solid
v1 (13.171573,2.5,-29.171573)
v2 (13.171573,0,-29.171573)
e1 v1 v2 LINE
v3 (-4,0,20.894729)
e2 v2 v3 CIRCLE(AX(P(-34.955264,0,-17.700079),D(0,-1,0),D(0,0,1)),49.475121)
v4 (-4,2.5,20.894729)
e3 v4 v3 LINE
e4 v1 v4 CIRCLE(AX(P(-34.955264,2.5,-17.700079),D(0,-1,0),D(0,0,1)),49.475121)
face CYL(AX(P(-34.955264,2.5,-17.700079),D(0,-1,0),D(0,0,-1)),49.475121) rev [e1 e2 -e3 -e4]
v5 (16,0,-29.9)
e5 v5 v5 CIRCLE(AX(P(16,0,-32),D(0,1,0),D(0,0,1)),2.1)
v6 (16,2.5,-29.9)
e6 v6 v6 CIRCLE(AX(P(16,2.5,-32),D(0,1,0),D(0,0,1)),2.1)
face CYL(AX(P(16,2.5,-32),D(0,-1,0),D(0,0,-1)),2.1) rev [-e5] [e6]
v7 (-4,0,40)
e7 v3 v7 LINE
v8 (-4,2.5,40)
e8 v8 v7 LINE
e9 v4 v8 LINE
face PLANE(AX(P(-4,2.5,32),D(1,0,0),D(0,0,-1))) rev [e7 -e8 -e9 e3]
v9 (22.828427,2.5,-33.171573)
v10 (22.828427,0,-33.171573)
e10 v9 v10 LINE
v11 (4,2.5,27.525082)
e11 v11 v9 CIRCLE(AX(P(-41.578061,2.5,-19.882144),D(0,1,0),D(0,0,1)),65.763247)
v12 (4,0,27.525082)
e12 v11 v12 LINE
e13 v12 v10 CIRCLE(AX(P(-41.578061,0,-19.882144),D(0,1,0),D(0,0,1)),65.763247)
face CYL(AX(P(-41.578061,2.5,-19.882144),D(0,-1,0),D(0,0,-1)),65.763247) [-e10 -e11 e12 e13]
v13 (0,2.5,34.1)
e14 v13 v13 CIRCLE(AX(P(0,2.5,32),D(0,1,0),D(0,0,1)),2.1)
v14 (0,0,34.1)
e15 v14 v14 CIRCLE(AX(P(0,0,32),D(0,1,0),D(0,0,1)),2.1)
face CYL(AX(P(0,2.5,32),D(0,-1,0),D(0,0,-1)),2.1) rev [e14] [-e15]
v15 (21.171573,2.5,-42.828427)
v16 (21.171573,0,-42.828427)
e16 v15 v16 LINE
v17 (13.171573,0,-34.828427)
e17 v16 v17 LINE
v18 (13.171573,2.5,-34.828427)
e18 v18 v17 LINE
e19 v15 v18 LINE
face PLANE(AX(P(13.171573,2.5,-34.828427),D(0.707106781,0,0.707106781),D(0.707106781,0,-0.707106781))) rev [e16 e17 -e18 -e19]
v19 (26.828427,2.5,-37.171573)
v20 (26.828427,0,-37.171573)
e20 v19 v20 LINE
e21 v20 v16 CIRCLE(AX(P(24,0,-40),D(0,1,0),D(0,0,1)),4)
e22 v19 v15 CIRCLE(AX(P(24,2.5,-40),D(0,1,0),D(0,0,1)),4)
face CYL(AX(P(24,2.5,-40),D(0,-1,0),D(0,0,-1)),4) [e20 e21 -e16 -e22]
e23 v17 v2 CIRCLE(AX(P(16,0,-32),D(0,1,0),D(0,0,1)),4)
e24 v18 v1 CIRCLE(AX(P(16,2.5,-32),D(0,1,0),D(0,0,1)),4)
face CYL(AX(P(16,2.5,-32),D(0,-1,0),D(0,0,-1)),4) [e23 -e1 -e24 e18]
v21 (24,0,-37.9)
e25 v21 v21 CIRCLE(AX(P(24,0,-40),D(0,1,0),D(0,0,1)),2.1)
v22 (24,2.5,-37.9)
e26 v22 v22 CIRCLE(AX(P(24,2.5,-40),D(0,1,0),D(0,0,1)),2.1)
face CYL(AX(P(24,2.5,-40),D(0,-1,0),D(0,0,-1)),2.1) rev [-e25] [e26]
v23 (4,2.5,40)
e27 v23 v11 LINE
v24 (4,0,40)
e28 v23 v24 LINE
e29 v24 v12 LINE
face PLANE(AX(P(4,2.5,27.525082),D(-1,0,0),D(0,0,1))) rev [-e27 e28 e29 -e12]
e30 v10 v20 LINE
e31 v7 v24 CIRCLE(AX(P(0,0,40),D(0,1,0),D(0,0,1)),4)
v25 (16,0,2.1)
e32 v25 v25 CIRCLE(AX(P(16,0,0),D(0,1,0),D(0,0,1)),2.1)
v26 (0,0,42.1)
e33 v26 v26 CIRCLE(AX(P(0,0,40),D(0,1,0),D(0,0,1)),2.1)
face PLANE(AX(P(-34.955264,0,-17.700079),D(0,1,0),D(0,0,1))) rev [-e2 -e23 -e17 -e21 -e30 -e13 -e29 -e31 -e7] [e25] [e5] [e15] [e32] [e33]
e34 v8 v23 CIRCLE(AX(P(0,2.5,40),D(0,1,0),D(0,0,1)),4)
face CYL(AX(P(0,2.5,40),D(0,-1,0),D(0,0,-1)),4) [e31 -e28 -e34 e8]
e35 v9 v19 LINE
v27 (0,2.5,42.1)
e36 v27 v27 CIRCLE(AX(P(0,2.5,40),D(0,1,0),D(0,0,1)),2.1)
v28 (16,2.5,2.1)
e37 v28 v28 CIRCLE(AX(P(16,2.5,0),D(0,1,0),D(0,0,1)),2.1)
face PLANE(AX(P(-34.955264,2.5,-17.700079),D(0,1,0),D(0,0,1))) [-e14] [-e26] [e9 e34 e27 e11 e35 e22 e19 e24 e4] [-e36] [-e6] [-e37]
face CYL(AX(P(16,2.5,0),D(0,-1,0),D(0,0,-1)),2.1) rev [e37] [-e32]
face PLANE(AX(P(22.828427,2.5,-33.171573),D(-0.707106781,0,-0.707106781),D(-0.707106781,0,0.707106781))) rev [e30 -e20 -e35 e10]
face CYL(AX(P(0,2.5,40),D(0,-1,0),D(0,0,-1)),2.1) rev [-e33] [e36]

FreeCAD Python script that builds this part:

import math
import FreeCAD as App
import Part
import Sketcher
Q = App.Units.Quantity

doc = App.newDocument("Part")
body = doc.addObject("PartDesign::Body", "Body")

sketch1 = body.newObject("Sketcher::SketchObject", "Sketch")
sketch1.AttachmentSupport = (doc.getObject("XZ_Plane"), [""])
sketch1.MapMode = "FlatFace"
sketch1.addGeometry([
    Part.ArcOfCircle(Part.Circle(App.Vector(0, 40, 0), App.Vector(0, 0, 1), 4), math.radians(0), math.radians(180)),
    Part.LineSegment(App.Vector(4, 40, 0), App.Vector(4, 27.5, 0)),
    Part.ArcOfCircle(Part.Circle(App.Vector(-41.6, -19.9, 0), App.Vector(0, 0, 1), 65.8), math.radians(-12), math.radians(46)),
    Part.LineSegment(App.Vector(22.8, -33.2, 0), App.Vector(26.8, -37.2, 0)),
    Part.ArcOfCircle(Part.Circle(App.Vector(24, -40, 0), App.Vector(0, 0, 1), 4), math.radians(-135), math.radians(45)),
    Part.LineSegment(App.Vector(21.2, -42.8, 0), App.Vector(13.2, -34.8, 0)),
    Part.ArcOfCircle(Part.Circle(App.Vector(16, -32, 0), App.Vector(0, 0, 1), 4), math.radians(135), math.radians(225)),
    Part.ArcOfCircle(Part.Circle(App.Vector(-35, -17.7, 0), App.Vector(0, 0, 1), 49.5), math.radians(-13), math.radians(51)),
    Part.LineSegment(App.Vector(-4, 20.9, 0), App.Vector(-4, 40, 0)),
    Part.Circle(App.Vector(0, 40, 0), App.Vector(0, 0, 1), 2.1),
    Part.Circle(App.Vector(0, 32, 0), App.Vector(0, 0, 1), 2.1),
    Part.Circle(App.Vector(16, 0, 0), App.Vector(0, 0, 1), 2.1),
    Part.Circle(App.Vector(24, -40, 0), App.Vector(0, 0, 1), 2.1),
    Part.Circle(App.Vector(16, -32, 0), App.Vector(0, 0, 1), 2.1),
], False)
sketch1.addConstraint([
    Sketcher.Constraint("Tangent", 0, 1, 1, 1),
    Sketcher.Constraint("Coincident", 1, 2, 2, 2),
    Sketcher.Constraint("Coincident", 2, 1, 3, 1),
    Sketcher.Constraint("Tangent", 3, 2, 4, 2),
    Sketcher.Constraint("Tangent", 4, 1, 5, 1),
    Sketcher.Constraint("Tangent", 5, 2, 6, 2),
    Sketcher.Constraint("Coincident", 6, 1, 7, 1),
    Sketcher.Constraint("Coincident", 7, 2, 8, 1),
    Sketcher.Constraint("Tangent", 8, 2, 0, 2),
    Sketcher.Constraint("Vertical", 1),
    Sketcher.Constraint("Vertical", 8),
    Sketcher.Constraint("Coincident", 9, 3, 0, 3),
    Sketcher.Constraint("Coincident", 12, 3, 4, 3),
    Sketcher.Constraint("Coincident", 13, 3, 6, 3),
    Sketcher.Constraint("Equal", 0, 4),
    Sketcher.Constraint("Equal", 4, 6),
    Sketcher.Constraint("Equal", 9, 10),
    Sketcher.Constraint("Equal", 10, 11),
    Sketcher.Constraint("Equal", 11, 12),
    Sketcher.Constraint("Equal", 12, 13),
    Sketcher.Constraint("PointOnObject", 0, 3, -2),
    Sketcher.Constraint("PointOnObject", 10, 3, -2),
    Sketcher.Constraint("PointOnObject", 11, 3, -1),
    Sketcher.Constraint("Parallel", 3, 5),
    Sketcher.Constraint("Vertical", 6, 3, 11, 3),
    Sketcher.Constraint("Vertical", 5, 2, 6, 1),
    Sketcher.Constraint("Radius", 0, Q("4 mm")),
    Sketcher.Constraint("Diameter", 9, Q("4.2 mm")),
    Sketcher.Constraint("Angle", 3, Q("-45 deg")),
    Sketcher.Constraint("DistanceY", -1, 1, 0, 3, Q("40 mm")),
    Sketcher.Constraint("DistanceX", -1, 1, 4, 3, Q("24 mm")),
    Sketcher.Constraint("DistanceY", 4, 3, -1, 1, Q("40 mm")),
    Sketcher.Constraint("DistanceX", -1, 1, 6, 3, Q("16 mm")),
    Sketcher.Constraint("DistanceY", -1, 1, 10, 3, Q("32 mm")),
    Sketcher.Constraint("DistanceX", 2, 1, 3, 2, Q("4 mm")),
    Sketcher.Constraint("Radius", 7, Q("49.475121 mm")),
    Sketcher.Constraint("Radius", 2, Q("65.763247 mm")),
    Sketcher.Constraint("DistanceY", 1, 2, 1, 1, Q("12.474918 mm")),
    Sketcher.Constraint("DistanceY", 8, 1, 8, 2, Q("19.105271 mm")),
])
pad1 = body.newObject("PartDesign::Pad", "Pad")
pad1.Profile = sketch1
pad1.Length = 2.5
pad1.Reversed = True

doc.recompute()
